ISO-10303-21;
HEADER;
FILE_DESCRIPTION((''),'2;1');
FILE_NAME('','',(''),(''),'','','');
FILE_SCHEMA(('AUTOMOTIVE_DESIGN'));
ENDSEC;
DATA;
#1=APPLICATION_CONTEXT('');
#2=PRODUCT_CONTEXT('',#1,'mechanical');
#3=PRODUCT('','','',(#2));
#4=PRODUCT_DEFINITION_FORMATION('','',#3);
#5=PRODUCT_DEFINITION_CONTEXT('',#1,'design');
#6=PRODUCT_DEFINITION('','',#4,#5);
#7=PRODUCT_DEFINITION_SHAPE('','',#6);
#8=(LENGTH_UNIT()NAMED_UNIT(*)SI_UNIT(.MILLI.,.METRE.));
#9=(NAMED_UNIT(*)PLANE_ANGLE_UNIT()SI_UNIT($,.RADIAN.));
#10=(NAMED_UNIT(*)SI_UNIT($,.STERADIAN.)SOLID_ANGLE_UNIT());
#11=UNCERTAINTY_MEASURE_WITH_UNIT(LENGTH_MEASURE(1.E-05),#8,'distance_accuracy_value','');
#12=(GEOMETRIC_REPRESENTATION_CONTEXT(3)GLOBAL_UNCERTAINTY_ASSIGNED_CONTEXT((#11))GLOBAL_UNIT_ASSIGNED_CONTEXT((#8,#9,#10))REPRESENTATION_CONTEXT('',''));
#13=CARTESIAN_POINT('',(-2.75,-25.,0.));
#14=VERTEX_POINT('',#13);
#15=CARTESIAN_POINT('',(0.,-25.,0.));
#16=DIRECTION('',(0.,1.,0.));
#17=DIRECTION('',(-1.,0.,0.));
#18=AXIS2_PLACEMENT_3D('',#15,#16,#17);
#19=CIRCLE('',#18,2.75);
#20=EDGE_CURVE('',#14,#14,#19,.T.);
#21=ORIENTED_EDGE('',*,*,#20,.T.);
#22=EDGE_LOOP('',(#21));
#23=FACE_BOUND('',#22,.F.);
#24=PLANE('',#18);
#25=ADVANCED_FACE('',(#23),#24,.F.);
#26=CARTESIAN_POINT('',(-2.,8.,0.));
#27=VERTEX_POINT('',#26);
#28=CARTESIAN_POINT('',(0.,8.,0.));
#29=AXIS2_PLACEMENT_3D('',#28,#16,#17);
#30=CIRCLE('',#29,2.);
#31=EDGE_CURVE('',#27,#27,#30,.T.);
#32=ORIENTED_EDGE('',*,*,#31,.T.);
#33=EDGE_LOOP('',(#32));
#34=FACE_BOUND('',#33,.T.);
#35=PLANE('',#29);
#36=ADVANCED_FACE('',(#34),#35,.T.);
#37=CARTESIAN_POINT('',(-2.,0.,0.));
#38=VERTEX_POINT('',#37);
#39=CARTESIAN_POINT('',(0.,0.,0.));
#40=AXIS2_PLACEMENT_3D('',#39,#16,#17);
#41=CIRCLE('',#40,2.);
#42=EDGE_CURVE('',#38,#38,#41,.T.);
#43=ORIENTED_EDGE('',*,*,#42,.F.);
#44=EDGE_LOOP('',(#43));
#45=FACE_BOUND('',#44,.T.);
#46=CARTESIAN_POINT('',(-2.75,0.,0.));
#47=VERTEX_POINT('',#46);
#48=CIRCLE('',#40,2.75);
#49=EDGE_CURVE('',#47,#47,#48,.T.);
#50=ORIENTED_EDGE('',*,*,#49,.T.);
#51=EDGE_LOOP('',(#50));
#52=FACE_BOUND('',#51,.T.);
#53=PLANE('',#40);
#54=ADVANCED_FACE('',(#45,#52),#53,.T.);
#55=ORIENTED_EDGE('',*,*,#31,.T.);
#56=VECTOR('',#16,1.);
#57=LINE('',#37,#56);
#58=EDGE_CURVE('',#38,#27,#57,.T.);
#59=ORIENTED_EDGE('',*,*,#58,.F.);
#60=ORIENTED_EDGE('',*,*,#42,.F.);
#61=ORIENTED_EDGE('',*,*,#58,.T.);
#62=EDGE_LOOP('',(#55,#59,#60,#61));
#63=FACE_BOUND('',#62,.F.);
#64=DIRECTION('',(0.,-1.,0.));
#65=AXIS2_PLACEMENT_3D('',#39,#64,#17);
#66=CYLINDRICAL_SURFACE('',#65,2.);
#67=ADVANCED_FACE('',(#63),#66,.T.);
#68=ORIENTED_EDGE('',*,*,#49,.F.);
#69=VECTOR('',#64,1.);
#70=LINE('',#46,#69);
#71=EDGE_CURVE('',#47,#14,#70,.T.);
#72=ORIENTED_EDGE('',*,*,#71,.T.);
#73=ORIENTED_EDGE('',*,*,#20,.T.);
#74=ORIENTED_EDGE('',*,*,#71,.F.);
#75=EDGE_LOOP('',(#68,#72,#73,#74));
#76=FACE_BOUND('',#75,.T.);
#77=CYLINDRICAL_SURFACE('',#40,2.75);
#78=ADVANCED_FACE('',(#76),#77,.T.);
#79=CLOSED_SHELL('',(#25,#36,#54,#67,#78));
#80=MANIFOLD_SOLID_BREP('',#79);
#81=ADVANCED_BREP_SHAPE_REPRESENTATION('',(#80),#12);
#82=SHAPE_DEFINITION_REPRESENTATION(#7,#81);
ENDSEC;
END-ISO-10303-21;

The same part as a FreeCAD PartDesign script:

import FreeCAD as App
import Part
import Sketcher

V = App.Vector

doc = App.newDocument("Part")
body = doc.addObject("PartDesign::Body", "Body")

sketch1 = body.newObject("Sketcher::SketchObject", "Sketch")
sketch1.AttachmentSupport = (doc.getObject("XZ_Plane"), [""])
sketch1.MapMode = "FlatFace"
sketch1.addGeometry(Part.Circle(V(0, 0, 0), V(0, 0, 1), 2.8), False)
sketch1.addConstraint([
    Sketcher.Constraint("Coincident", 0, 3, -1, 1),
    Sketcher.Constraint("Diameter", 0, 5.5),
])
pad1 = body.newObject("PartDesign::Pad", "Pad")
pad1.Profile = sketch1
pad1.Length = 25

sketch2 = body.newObject("Sketcher::SketchObject", "Sketch001")
sketch2.AttachmentSupport = (doc.getObject("XZ_Plane"), [""])
sketch2.MapMode = "FlatFace"
sketch2.addGeometry(Part.Circle(V(0, 0, 0), V(0, 0, 1), 2), False)
sketch2.addConstraint([
    Sketcher.Constraint("Coincident", 0, 3, -1, 1),
    Sketcher.Constraint("Diameter", 0, 4.0),
])
pad2 = body.newObject("PartDesign::Pad", "Pad001")
pad2.Profile = sketch2
pad2.Length = 8
pad2.Reversed = True

doc.recompute()
